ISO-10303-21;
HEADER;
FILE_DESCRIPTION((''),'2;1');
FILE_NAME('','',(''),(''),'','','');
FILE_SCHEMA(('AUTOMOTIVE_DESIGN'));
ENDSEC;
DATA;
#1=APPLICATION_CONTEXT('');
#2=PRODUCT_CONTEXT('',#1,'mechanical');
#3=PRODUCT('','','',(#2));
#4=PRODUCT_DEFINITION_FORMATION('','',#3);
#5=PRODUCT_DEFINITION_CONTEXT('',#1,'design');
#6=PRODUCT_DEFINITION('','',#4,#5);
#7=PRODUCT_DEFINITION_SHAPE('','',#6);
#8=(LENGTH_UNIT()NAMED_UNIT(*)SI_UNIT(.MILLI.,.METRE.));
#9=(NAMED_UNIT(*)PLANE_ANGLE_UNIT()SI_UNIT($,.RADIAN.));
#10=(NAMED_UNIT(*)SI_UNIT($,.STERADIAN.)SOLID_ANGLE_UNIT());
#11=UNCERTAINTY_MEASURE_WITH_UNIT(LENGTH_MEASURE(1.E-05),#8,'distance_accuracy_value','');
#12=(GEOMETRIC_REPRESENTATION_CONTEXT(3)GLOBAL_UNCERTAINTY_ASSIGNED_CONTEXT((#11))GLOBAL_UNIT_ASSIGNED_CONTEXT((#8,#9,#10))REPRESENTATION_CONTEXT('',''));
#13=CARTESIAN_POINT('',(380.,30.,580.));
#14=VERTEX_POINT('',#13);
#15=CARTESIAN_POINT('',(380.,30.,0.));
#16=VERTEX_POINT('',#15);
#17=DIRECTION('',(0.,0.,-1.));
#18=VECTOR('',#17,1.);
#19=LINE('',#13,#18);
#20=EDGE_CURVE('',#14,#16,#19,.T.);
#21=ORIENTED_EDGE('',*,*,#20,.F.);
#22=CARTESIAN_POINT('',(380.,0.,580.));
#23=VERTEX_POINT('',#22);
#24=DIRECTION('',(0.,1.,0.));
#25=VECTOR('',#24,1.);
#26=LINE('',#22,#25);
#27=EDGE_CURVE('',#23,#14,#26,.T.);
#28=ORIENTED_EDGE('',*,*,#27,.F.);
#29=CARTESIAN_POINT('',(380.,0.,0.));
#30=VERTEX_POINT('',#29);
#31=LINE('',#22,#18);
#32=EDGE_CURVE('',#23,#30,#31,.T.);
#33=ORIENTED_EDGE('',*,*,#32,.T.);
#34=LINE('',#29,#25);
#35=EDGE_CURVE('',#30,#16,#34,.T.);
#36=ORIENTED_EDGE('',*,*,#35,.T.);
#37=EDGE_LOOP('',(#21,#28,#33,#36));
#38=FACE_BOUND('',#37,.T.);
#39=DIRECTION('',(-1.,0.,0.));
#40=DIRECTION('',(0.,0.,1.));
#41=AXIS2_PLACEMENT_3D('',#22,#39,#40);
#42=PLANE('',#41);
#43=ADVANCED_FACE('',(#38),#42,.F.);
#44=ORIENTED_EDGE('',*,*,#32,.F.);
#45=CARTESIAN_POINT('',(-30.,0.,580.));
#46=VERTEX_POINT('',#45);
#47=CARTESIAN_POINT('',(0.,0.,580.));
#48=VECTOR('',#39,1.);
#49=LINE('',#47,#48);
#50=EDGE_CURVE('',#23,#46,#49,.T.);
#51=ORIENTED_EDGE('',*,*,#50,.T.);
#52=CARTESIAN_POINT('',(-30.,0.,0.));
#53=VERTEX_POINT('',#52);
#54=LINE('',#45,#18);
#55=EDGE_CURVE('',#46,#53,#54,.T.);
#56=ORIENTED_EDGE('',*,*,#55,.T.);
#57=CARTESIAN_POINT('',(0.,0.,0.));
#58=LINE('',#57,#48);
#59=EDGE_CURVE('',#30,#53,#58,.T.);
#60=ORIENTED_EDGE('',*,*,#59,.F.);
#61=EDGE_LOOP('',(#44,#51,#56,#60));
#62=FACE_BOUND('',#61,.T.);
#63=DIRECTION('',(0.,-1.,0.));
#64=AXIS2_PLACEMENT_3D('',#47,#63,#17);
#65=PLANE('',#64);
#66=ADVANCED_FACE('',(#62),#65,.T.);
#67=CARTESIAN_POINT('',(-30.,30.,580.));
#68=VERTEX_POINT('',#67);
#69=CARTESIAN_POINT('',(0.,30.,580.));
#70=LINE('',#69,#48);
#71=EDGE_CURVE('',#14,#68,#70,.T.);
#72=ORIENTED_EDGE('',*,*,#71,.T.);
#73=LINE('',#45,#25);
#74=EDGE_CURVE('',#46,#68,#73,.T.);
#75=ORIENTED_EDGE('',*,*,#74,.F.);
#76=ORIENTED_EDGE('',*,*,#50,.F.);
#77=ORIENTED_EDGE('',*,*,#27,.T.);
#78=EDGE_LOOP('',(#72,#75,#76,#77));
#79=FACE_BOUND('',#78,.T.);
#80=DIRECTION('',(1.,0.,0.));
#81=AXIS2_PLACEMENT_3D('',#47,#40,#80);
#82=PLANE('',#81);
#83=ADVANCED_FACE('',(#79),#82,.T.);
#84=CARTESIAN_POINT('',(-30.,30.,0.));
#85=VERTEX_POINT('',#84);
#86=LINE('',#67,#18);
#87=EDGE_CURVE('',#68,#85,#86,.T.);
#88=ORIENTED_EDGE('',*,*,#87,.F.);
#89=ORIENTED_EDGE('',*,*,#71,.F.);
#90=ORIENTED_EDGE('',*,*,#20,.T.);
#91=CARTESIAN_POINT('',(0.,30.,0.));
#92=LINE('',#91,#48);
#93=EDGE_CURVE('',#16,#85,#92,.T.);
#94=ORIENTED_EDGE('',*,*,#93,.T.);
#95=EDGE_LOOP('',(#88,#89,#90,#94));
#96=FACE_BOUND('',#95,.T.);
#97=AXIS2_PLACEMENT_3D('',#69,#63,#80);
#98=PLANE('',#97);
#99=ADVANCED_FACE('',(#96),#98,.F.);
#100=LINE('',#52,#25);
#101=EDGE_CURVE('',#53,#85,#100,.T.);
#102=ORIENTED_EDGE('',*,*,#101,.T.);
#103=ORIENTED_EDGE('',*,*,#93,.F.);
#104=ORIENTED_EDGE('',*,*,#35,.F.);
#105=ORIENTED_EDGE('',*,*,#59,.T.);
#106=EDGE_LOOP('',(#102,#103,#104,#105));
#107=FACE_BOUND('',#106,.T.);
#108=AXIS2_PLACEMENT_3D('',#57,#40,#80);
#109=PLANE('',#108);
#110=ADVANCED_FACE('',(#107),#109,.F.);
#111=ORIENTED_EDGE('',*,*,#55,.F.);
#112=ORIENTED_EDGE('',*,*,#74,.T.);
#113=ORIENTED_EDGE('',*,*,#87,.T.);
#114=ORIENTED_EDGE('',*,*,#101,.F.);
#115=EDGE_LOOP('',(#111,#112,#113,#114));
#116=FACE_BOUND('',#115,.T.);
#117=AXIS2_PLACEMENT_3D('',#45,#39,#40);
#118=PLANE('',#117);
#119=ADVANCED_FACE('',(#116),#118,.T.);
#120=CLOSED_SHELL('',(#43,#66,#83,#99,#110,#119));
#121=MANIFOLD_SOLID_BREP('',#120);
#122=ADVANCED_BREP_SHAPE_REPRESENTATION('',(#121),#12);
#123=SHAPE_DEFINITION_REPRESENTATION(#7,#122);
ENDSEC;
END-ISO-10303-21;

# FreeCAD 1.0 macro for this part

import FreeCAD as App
import Part
import Sketcher
from FreeCAD import Vector
Q = App.Units.Quantity

doc = App.newDocument("Part")
body = doc.addObject("PartDesign::Body", "Body")

sketch1 = body.newObject("Sketcher::SketchObject", "Sketch")
sketch1.AttachmentSupport = (doc.getObject("XY_Plane"), [""])
sketch1.MapMode = "FlatFace"
sketch1.addGeometry([
    Part.LineSegment(Vector(-30, 30, 0), Vector(-30, 0, 0)),
    Part.LineSegment(Vector(-30, 0, 0), Vector(380, 0, 0)),
    Part.LineSegment(Vector(380, 0, 0), Vector(380, 30, 0)),
    Part.LineSegment(Vector(380, 30, 0), Vector(-30, 30, 0)),
], False)
sketch1.addConstraint([
    Sketcher.Constraint("Coincident", 0, 2, 1, 1),
    Sketcher.Constraint("Coincident", 1, 2, 2, 1),
    Sketcher.Constraint("Coincident", 2, 2, 3, 1),
    Sketcher.Constraint("Coincident", 3, 2, 0, 1),
    Sketcher.Constraint("Vertical", 0),
    Sketcher.Constraint("Horizontal", 1),
    Sketcher.Constraint("Vertical", 2),
    Sketcher.Constraint("Horizontal", 3),
    Sketcher.Constraint("PointOnObject", 0, 2, -1),
    Sketcher.Constraint("DistanceX", 1, 1, 1, 2, Q("410 mm")),
    Sketcher.Constraint("DistanceY", 0, 2, 0, 1, Q("30 mm")),
    Sketcher.Constraint("DistanceX", 0, 2, -1, 1, Q("30 mm")),
])
pad1 = body.newObject("PartDesign::Pad", "Pad")
pad1.Profile = sketch1
pad1.Length = 580

doc.recompute()
